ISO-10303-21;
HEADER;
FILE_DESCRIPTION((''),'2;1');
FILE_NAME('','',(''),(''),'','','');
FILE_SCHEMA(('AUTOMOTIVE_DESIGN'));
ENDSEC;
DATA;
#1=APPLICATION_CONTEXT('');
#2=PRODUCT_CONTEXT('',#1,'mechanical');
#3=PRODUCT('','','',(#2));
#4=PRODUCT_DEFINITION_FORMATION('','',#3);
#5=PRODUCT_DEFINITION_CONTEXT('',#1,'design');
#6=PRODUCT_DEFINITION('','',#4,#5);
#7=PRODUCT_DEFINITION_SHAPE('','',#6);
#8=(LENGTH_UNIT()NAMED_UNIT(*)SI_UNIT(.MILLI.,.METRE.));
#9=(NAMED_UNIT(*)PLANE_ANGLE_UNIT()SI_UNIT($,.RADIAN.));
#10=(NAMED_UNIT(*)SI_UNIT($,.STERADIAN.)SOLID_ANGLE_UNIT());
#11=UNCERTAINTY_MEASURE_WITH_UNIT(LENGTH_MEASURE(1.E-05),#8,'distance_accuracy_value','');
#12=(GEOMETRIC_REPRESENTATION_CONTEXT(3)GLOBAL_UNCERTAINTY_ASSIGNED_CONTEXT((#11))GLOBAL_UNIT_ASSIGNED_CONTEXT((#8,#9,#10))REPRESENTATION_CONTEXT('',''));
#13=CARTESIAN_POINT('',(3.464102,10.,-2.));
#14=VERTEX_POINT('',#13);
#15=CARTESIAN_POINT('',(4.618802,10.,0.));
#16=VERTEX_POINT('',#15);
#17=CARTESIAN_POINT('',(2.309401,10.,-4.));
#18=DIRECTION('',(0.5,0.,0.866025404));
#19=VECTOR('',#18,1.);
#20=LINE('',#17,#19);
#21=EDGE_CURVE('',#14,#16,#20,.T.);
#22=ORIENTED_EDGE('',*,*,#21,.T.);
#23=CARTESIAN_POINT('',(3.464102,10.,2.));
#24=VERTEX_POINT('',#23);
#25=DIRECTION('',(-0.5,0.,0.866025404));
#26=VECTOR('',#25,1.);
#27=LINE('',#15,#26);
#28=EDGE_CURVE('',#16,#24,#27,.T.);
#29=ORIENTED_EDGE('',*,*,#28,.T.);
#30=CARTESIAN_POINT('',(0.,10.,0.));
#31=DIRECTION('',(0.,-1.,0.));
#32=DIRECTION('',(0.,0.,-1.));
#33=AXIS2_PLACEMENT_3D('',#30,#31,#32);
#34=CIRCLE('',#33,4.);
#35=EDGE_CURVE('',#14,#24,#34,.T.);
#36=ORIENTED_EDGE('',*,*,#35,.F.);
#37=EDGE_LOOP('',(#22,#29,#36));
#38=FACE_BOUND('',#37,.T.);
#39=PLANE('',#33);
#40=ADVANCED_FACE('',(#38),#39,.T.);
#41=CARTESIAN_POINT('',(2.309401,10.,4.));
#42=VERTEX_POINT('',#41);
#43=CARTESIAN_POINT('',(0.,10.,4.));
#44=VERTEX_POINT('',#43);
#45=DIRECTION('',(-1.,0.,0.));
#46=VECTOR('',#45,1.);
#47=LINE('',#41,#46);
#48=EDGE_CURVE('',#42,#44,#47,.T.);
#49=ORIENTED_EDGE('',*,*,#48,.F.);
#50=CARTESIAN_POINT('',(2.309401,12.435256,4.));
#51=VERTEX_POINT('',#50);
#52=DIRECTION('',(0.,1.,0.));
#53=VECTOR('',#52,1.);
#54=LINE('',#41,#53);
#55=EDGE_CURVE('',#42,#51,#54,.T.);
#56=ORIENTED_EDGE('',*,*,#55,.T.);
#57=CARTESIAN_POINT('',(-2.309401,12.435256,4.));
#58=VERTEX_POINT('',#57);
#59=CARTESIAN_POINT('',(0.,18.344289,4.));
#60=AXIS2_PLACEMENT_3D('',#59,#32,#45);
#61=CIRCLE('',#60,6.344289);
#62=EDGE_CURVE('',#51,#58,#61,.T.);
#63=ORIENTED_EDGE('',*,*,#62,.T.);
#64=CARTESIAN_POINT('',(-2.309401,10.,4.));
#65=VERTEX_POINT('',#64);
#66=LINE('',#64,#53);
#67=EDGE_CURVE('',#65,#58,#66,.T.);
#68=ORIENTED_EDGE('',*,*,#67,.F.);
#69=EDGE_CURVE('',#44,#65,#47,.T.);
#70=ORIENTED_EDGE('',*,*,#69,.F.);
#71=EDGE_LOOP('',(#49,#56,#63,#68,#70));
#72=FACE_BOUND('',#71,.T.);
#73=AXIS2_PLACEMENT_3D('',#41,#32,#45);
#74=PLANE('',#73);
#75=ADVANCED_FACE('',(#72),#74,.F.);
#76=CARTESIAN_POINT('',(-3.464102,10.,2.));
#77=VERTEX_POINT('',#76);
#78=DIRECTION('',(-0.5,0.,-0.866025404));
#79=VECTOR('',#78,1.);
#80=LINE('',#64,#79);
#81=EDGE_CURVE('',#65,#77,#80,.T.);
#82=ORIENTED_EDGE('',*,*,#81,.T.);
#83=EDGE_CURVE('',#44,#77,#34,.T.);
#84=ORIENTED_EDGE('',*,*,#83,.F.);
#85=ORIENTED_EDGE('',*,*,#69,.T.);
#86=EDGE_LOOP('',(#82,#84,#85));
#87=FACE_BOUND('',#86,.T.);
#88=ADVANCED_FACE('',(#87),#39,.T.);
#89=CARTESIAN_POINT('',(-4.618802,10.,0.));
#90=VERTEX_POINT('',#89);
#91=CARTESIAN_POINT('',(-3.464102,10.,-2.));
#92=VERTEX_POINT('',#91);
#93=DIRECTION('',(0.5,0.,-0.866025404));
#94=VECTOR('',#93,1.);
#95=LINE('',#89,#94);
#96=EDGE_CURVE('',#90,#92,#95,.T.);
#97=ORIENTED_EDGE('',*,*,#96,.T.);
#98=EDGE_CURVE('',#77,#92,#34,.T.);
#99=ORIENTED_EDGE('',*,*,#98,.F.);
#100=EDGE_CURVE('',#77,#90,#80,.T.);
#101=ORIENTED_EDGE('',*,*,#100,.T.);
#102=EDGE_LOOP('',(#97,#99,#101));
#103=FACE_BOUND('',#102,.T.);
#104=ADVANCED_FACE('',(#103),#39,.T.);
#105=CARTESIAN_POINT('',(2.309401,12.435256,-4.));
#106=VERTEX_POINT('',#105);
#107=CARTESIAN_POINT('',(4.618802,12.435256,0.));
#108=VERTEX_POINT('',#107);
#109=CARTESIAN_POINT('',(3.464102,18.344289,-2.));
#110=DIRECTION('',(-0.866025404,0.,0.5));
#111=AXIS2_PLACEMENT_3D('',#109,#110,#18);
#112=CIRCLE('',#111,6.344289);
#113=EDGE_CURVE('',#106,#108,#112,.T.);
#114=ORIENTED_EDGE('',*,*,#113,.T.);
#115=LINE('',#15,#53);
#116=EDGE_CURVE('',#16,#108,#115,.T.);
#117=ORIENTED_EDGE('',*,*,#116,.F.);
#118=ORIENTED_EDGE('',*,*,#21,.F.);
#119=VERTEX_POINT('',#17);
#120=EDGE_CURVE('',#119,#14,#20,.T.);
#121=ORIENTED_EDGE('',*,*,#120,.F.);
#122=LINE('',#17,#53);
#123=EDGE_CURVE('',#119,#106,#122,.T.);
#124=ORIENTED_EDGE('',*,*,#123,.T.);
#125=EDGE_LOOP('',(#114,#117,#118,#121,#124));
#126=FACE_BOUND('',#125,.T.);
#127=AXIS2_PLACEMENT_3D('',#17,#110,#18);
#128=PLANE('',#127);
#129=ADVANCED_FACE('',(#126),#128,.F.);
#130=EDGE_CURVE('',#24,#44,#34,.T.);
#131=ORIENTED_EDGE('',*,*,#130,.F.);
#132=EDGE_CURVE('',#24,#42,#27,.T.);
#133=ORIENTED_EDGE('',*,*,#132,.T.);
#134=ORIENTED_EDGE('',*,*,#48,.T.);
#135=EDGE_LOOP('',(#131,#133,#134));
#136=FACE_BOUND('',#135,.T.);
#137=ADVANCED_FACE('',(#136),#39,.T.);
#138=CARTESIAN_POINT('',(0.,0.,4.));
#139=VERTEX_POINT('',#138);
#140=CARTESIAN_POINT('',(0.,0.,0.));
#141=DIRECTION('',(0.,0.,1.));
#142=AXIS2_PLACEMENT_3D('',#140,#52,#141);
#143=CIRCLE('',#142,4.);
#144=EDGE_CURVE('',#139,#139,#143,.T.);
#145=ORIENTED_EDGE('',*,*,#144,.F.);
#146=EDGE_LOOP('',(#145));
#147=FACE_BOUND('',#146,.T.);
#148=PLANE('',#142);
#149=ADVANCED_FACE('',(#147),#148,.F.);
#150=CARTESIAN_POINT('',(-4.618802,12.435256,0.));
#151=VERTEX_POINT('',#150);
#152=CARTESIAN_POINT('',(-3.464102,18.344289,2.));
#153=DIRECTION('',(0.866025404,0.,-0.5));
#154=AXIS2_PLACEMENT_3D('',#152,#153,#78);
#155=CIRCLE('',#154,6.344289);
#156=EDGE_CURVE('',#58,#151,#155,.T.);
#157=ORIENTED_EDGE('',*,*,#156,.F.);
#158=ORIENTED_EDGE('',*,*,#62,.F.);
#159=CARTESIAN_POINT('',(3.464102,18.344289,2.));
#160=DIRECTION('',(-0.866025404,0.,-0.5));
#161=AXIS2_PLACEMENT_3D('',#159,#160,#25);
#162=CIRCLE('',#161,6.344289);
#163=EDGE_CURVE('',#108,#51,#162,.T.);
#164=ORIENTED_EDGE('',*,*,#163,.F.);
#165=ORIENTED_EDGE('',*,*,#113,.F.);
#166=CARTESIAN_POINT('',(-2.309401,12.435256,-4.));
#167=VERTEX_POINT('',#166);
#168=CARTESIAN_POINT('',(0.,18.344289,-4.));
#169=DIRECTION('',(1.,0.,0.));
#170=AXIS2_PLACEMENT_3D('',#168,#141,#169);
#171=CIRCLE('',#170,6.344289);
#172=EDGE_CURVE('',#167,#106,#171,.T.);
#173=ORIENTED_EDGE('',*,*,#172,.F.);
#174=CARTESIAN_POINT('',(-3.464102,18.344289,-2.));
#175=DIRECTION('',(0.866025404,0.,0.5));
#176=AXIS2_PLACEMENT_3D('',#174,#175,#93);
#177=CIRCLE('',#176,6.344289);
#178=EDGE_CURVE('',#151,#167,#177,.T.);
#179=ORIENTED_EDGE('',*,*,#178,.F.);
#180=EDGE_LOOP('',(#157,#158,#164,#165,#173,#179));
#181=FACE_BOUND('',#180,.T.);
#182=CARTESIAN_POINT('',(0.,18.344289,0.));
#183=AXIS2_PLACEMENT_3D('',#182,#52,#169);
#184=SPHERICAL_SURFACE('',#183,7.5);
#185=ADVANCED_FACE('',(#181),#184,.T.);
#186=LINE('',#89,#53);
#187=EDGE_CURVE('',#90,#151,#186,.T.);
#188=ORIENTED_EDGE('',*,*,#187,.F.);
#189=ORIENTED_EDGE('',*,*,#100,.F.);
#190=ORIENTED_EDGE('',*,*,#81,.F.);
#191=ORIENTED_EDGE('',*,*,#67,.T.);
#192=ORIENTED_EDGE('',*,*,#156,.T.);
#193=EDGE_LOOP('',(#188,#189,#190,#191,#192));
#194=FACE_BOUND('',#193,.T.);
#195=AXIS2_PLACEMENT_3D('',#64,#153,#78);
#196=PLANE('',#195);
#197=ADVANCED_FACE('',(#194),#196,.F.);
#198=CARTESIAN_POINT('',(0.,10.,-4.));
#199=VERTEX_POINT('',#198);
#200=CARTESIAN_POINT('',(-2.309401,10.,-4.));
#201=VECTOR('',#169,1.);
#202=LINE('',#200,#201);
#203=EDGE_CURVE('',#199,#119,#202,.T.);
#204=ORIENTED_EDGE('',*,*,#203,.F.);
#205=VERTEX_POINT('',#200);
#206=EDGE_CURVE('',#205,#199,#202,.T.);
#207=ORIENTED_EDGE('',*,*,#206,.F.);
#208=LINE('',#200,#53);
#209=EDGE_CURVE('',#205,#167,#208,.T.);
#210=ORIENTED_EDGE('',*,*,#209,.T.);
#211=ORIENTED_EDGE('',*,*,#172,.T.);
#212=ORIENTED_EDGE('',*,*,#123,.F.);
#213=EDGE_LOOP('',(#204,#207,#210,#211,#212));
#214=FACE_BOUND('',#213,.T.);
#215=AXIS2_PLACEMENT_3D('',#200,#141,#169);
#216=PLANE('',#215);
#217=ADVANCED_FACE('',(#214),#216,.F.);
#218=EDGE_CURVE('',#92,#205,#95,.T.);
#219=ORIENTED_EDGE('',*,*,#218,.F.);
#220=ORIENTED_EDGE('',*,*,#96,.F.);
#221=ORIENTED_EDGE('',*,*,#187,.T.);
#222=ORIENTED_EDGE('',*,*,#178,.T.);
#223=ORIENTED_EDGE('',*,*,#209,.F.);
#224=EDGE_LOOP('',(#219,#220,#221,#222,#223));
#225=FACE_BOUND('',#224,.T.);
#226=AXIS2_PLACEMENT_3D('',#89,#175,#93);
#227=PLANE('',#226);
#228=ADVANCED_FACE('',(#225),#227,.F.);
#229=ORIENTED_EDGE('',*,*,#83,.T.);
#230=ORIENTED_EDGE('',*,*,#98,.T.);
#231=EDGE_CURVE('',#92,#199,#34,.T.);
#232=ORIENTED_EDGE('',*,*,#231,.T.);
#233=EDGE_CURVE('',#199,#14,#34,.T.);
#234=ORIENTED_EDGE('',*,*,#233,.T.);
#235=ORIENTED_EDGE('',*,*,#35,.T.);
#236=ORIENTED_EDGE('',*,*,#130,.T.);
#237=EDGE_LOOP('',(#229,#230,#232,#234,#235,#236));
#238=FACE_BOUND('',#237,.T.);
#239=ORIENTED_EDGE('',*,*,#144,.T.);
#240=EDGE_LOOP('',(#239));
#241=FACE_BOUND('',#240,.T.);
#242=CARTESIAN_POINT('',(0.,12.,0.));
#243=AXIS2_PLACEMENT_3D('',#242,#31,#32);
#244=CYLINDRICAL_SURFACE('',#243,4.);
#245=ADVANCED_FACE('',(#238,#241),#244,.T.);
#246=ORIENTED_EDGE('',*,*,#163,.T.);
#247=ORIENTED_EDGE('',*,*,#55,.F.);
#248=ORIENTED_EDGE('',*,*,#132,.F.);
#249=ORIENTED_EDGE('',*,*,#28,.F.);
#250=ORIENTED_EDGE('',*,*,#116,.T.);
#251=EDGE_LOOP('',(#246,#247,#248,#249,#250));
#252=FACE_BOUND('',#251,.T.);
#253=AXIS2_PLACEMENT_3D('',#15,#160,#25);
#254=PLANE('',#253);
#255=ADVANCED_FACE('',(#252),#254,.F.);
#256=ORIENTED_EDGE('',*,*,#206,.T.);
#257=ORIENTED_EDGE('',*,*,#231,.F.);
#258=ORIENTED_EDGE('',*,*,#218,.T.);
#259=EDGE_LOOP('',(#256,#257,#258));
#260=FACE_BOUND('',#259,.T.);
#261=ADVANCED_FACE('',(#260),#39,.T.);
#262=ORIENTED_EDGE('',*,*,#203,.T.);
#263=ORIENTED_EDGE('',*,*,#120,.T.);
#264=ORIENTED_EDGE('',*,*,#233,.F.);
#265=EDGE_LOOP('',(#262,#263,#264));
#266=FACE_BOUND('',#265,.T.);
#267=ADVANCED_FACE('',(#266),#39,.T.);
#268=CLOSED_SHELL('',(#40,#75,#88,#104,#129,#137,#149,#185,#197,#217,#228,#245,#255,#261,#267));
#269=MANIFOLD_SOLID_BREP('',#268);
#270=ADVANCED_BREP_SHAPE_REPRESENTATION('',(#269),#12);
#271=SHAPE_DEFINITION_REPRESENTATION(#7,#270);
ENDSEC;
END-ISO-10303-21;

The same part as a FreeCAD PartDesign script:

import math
import FreeCAD as App
import Part
import Sketcher
Q = App.Units.Quantity

doc = App.newDocument("Part")
body = doc.addObject("PartDesign::Body", "Body")

# Sketch on XZ plane
sketch1 = body.newObject("Sketcher::SketchObject", "Sketch")
sketch1.AttachmentSupport = (doc.getObject("XZ_Plane"), [""])
sketch1.MapMode = "FlatFace"
sketch1.addGeometry(Part.Circle(App.Vector(0, 0, 0), App.Vector(0, 0, 1), 4), False)
sketch1.addConstraint(Sketcher.Constraint("Coincident", 0, 3, -1, 1))
sketch1.addConstraint(Sketcher.Constraint("Diameter", 0, 8.0))
pad1 = body.newObject("PartDesign::Pad", "Pad")
pad1.Profile = sketch1
pad1.Length = 12
pad1.Reversed = True

# Sketch on XY plane
sketch2 = body.newObject("Sketcher::SketchObject", "Sketch001")
sketch2.AttachmentSupport = (doc.getObject("XY_Plane"), [""])
sketch2.MapMode = "FlatFace"
sketch2.addGeometry(Part.LineSegment(App.Vector(0, 25.844289, 0), App.Vector(0, 10.844289, 0)), False)
sketch2.addGeometry(Part.ArcOfCircle(Part.Circle(App.Vector(0, 18.344289, 0), App.Vector(0, 0, 1), 7.5), math.radians(-90), math.radians(90)), False)
sketch2.addConstraint(Sketcher.Constraint("Coincident", 0, 1, 1, 2))
sketch2.addConstraint(Sketcher.Constraint("Coincident", 1, 1, 0, 2))
sketch2.addConstraint(Sketcher.Constraint("Vertical", 0))
sketch2.addConstraint(Sketcher.Constraint("PointOnObject", 1, 3, -2))
sketch2.addConstraint(Sketcher.Constraint("PointOnObject", 0, 1, -2))
sketch2.addConstraint(Sketcher.Constraint("Radius", 1, 7.5))
sketch2.addConstraint(Sketcher.Constraint("DistanceY", -1, 1, 1, 3, 18.344289))
revolution = body.newObject("PartDesign::Revolution", "Revolution")
revolution.Profile = sketch2
revolution.ReferenceAxis = (sketch2, ["V_Axis"])
revolution.Angle = 360

# Sketch on XZ plane
sketch3 = body.newObject("Sketcher::SketchObject", "Sketch002")
sketch3.AttachmentSupport = (doc.getObject("XZ_Plane"), [""])
sketch3.MapMode = "FlatFace"
sketch3.AttachmentOffset = App.Placement(App.Vector(0, 0, -13), App.Rotation())
sketch3.addGeometry(Part.LineSegment(App.Vector(-2.309401, -4, 0), App.Vector(2.309401, -4, 0)), False)
sketch3.addGeometry(Part.LineSegment(App.Vector(2.309401, -4, 0), App.Vector(4.618802, 0, 0)), False)
sketch3.addGeometry(Part.LineSegment(App.Vector(4.618802, 0, 0), App.Vector(2.309401, 4, 0)), False)
sketch3.addGeometry(Part.LineSegment(App.Vector(2.309401, 4, 0), App.Vector(-2.309401, 4, 0)), False)
sketch3.addGeometry(Part.LineSegment(App.Vector(-2.309401, 4, 0), App.Vector(-4.618802, 0, 0)), False)
sketch3.addGeometry(Part.LineSegment(App.Vector(-4.618802, 0, 0), App.Vector(-2.309401, -4, 0)), False)
sketch3.addConstraint(Sketcher.Constraint("Coincident", 0, 2, 1, 1))
sketch3.addConstraint(Sketcher.Constraint("Coincident", 1, 2, 2, 1))
sketch3.addConstraint(Sketcher.Constraint("Coincident", 2, 2, 3, 1))
sketch3.addConstraint(Sketcher.Constraint("Coincident", 3, 2, 4, 1))
sketch3.addConstraint(Sketcher.Constraint("Coincident", 4, 2, 5, 1))
sketch3.addConstraint(Sketcher.Constraint("Coincident", 5, 2, 0, 1))
sketch3.addConstraint(Sketcher.Constraint("Horizontal", 0))
sketch3.addConstraint(Sketcher.Constraint("Horizontal", 3))
sketch3.addConstraint(Sketcher.Constraint("Symmetric", 0, 2, 3, 2, -1, 1))
sketch3.addConstraint(Sketcher.Constraint("Symmetric", 1, 2, 4, 2, -1, 1))
sketch3.addConstraint(Sketcher.Constraint("PointOnObject", 1, 2, -1))
sketch3.addConstraint(Sketcher.Constraint("Parallel", 2, 5))
sketch3.addConstraint(Sketcher.Constraint("Vertical", 0, 2, 2, 2))
sketch3.addConstraint(Sketcher.Constraint("Angle", 1, Q("60 deg")))
sketch3.addConstraint(Sketcher.Constraint("DistanceY", 0, 2, -1, 1, 4.0))
sketch3.addConstraint(Sketcher.Constraint("DistanceX", -1, 1, 0, 2, 2.309401))
pad2 = body.newObject("PartDesign::Pad", "Pad001")
pad2.Profile = sketch3
pad2.Length = 3

doc.recompute()
